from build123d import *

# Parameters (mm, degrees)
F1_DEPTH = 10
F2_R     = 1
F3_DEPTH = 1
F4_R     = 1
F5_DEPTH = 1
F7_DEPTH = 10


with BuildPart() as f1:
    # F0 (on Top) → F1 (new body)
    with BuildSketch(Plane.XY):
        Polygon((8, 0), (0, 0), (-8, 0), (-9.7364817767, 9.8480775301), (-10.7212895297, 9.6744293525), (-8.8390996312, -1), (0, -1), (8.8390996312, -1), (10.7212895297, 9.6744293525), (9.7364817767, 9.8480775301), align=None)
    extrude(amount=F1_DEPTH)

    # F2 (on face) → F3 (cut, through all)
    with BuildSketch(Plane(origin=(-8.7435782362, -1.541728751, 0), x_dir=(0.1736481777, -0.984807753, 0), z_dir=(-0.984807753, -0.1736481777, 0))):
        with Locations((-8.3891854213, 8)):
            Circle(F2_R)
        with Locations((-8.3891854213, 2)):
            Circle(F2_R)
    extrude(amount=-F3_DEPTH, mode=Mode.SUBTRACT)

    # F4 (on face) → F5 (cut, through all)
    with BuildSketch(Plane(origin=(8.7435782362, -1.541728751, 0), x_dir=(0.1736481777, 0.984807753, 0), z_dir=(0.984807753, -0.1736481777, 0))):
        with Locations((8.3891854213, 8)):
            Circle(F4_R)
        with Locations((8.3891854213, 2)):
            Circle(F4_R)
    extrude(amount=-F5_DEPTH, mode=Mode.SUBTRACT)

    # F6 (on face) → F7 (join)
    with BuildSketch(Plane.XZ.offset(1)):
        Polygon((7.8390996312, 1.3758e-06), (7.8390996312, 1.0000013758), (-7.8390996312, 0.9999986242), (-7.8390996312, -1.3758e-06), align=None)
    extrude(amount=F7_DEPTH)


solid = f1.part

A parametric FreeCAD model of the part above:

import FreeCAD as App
import Part
import Sketcher
Q = App.Units.Quantity


def add_polygon(sketch, points):
    """Adds a closed chain of lines whose ends are joined by coincident constraints."""
    first, n = sketch.GeometryCount, len(points)
    for a, b in zip(points, points[1:] + points[:1]):
        sketch.addGeometry(Part.LineSegment(App.Vector(*a, 0), App.Vector(*b, 0)), False)
    for i in range(n):
        sketch.addConstraint(Sketcher.Constraint("Coincident", first + i, 2, first + (i + 1) % n, 1))

doc = App.newDocument("Part")
body = doc.addObject("PartDesign::Body", "Body")

# Sketch on XY plane
sketch1 = body.newObject("Sketcher::SketchObject", "Sketch")
sketch1.AttachmentSupport = (doc.getObject("XY_Plane"), [""])
sketch1.MapMode = "FlatFace"
add_polygon(sketch1, [(8, 0), (-8, 0), (-9.7, 9.8), (-10.7, 9.7), (-8.8, -1), (8.8, -1), (10.7, 9.7), (9.7, 9.8)])  # lines 0-7
sketch1.addConstraint([
    Sketcher.Constraint("Horizontal", 0),
    Sketcher.Constraint("Horizontal", 4),
    Sketcher.Constraint("Symmetric", 0, 2, 7, 2, -1, 1),
    Sketcher.Constraint("Symmetric", 2, 2, 5, 2, -2),
    Sketcher.Constraint("Symmetric", 1, 2, 6, 2, -2),
    Sketcher.Constraint("Perpendicular", 1, 2),
    Sketcher.Constraint("Perpendicular", 2, 3),
    Sketcher.Constraint("Perpendicular", 5, 6),
    Sketcher.Constraint("DistanceX", 0, 2, 0, 1, Q("16 mm")),
    Sketcher.Constraint("Angle", 1, Q("100 deg")),
    Sketcher.Constraint("Distance", 1, Q("10 mm")),
    Sketcher.Constraint("Distance", 2, Q("1 mm")),
    Sketcher.Constraint("DistanceY", 3, 2, -1, 1, Q("1 mm")),
])
pad1 = body.newObject("PartDesign::Pad", "Pad")
pad1.Profile = sketch1
pad1.Length = 10

# Sketch on an angled plane
sketch2 = body.newObject("Sketcher::SketchObject", "Sketch001")
sketch2.Placement = App.Placement(App.Vector(-8.743578, -1.541729, 0), App.Rotation(App.Vector(0.173648178, -0.984807753, 0), App.Vector(0, 0, 1), App.Vector(-0.984807753, -0.173648178, 0), "ZXY"))
sketch2.addGeometry([
    Part.Circle(App.Vector(-8.4, 8, 0), App.Vector(0, 0, 1), 1),
    Part.Circle(App.Vector(-8.4, 2, 0), App.Vector(0, 0, 1), 1),
], False)
sketch2.addConstraint([
    Sketcher.Constraint("Equal", 0, 1),
    Sketcher.Constraint("Vertical", 0, 3, 1, 3),
    Sketcher.Constraint("Diameter", 0, Q("2 mm")),
    Sketcher.Constraint("DistanceY", -1, 1, 0, 3, Q("8 mm")),
    Sketcher.Constraint("DistanceY", -1, 1, 1, 3, Q("2 mm")),
    Sketcher.Constraint("DistanceX", 0, 3, -1, 1, Q("8.389185 mm")),
])
pocket1 = body.newObject("PartDesign::Pocket", "Pocket")
pocket1.Profile = sketch2
pocket1.Length = 1

# Sketch on an angled plane
sketch3 = body.newObject("Sketcher::SketchObject", "Sketch002")
sketch3.Placement = App.Placement(App.Vector(8.743578, -1.541729, 0), App.Rotation(App.Vector(0.173648178, 0.984807753, 0), App.Vector(0, 0, 1), App.Vector(0.984807753, -0.173648178, 0), "ZXY"))
sketch3.addGeometry([
    Part.Circle(App.Vector(8.4, 8, 0), App.Vector(0, 0, 1), 1),
    Part.Circle(App.Vector(8.4, 2, 0), App.Vector(0, 0, 1), 1),
], False)
sketch3.addConstraint([
    Sketcher.Constraint("Equal", 0, 1),
    Sketcher.Constraint("Vertical", 0, 3, 1, 3),
    Sketcher.Constraint("Diameter", 0, Q("2 mm")),
    Sketcher.Constraint("DistanceY", -1, 1, 0, 3, Q("8 mm")),
    Sketcher.Constraint("DistanceY", -1, 1, 1, 3, Q("2 mm")),
    Sketcher.Constraint("DistanceX", -1, 1, 0, 3, Q("8.389185 mm")),
])
pocket2 = body.newObject("PartDesign::Pocket", "Pocket001")
pocket2.Profile = sketch3
pocket2.Length = 1

# Sketch on XZ plane
sketch4 = body.newObject("Sketcher::SketchObject", "Sketch003")
sketch4.AttachmentSupport = (doc.getObject("XZ_Plane"), [""])
sketch4.MapMode = "FlatFace"
sketch4.AttachmentOffset = App.Placement(App.Vector(0, 0, 1), App.Rotation())
add_polygon(sketch4, [(7.8, 0), (7.8, 1), (-7.8, 1), (-7.8, 0)])  # lines 0-3
sketch4.addConstraint([
    Sketcher.Constraint("Vertical", 0),
    Sketcher.Constraint("Vertical", 2),
    Sketcher.Constraint("Symmetric", 2, 2, 3, 2, -1, 1),
    Sketcher.Constraint("PointOnObject", 2, 2, -1),
    Sketcher.Constraint("Parallel", 1, 3),
    Sketcher.Constraint("DistanceY", 0, 1, 0, 2, Q("1 mm")),
    Sketcher.Constraint("Distance", 1, Q("15.678199 mm")),
])
pad2 = body.newObject("PartDesign::Pad", "Pad001")
pad2.Profile = sketch4
pad2.Length = 10

doc.recompute()
